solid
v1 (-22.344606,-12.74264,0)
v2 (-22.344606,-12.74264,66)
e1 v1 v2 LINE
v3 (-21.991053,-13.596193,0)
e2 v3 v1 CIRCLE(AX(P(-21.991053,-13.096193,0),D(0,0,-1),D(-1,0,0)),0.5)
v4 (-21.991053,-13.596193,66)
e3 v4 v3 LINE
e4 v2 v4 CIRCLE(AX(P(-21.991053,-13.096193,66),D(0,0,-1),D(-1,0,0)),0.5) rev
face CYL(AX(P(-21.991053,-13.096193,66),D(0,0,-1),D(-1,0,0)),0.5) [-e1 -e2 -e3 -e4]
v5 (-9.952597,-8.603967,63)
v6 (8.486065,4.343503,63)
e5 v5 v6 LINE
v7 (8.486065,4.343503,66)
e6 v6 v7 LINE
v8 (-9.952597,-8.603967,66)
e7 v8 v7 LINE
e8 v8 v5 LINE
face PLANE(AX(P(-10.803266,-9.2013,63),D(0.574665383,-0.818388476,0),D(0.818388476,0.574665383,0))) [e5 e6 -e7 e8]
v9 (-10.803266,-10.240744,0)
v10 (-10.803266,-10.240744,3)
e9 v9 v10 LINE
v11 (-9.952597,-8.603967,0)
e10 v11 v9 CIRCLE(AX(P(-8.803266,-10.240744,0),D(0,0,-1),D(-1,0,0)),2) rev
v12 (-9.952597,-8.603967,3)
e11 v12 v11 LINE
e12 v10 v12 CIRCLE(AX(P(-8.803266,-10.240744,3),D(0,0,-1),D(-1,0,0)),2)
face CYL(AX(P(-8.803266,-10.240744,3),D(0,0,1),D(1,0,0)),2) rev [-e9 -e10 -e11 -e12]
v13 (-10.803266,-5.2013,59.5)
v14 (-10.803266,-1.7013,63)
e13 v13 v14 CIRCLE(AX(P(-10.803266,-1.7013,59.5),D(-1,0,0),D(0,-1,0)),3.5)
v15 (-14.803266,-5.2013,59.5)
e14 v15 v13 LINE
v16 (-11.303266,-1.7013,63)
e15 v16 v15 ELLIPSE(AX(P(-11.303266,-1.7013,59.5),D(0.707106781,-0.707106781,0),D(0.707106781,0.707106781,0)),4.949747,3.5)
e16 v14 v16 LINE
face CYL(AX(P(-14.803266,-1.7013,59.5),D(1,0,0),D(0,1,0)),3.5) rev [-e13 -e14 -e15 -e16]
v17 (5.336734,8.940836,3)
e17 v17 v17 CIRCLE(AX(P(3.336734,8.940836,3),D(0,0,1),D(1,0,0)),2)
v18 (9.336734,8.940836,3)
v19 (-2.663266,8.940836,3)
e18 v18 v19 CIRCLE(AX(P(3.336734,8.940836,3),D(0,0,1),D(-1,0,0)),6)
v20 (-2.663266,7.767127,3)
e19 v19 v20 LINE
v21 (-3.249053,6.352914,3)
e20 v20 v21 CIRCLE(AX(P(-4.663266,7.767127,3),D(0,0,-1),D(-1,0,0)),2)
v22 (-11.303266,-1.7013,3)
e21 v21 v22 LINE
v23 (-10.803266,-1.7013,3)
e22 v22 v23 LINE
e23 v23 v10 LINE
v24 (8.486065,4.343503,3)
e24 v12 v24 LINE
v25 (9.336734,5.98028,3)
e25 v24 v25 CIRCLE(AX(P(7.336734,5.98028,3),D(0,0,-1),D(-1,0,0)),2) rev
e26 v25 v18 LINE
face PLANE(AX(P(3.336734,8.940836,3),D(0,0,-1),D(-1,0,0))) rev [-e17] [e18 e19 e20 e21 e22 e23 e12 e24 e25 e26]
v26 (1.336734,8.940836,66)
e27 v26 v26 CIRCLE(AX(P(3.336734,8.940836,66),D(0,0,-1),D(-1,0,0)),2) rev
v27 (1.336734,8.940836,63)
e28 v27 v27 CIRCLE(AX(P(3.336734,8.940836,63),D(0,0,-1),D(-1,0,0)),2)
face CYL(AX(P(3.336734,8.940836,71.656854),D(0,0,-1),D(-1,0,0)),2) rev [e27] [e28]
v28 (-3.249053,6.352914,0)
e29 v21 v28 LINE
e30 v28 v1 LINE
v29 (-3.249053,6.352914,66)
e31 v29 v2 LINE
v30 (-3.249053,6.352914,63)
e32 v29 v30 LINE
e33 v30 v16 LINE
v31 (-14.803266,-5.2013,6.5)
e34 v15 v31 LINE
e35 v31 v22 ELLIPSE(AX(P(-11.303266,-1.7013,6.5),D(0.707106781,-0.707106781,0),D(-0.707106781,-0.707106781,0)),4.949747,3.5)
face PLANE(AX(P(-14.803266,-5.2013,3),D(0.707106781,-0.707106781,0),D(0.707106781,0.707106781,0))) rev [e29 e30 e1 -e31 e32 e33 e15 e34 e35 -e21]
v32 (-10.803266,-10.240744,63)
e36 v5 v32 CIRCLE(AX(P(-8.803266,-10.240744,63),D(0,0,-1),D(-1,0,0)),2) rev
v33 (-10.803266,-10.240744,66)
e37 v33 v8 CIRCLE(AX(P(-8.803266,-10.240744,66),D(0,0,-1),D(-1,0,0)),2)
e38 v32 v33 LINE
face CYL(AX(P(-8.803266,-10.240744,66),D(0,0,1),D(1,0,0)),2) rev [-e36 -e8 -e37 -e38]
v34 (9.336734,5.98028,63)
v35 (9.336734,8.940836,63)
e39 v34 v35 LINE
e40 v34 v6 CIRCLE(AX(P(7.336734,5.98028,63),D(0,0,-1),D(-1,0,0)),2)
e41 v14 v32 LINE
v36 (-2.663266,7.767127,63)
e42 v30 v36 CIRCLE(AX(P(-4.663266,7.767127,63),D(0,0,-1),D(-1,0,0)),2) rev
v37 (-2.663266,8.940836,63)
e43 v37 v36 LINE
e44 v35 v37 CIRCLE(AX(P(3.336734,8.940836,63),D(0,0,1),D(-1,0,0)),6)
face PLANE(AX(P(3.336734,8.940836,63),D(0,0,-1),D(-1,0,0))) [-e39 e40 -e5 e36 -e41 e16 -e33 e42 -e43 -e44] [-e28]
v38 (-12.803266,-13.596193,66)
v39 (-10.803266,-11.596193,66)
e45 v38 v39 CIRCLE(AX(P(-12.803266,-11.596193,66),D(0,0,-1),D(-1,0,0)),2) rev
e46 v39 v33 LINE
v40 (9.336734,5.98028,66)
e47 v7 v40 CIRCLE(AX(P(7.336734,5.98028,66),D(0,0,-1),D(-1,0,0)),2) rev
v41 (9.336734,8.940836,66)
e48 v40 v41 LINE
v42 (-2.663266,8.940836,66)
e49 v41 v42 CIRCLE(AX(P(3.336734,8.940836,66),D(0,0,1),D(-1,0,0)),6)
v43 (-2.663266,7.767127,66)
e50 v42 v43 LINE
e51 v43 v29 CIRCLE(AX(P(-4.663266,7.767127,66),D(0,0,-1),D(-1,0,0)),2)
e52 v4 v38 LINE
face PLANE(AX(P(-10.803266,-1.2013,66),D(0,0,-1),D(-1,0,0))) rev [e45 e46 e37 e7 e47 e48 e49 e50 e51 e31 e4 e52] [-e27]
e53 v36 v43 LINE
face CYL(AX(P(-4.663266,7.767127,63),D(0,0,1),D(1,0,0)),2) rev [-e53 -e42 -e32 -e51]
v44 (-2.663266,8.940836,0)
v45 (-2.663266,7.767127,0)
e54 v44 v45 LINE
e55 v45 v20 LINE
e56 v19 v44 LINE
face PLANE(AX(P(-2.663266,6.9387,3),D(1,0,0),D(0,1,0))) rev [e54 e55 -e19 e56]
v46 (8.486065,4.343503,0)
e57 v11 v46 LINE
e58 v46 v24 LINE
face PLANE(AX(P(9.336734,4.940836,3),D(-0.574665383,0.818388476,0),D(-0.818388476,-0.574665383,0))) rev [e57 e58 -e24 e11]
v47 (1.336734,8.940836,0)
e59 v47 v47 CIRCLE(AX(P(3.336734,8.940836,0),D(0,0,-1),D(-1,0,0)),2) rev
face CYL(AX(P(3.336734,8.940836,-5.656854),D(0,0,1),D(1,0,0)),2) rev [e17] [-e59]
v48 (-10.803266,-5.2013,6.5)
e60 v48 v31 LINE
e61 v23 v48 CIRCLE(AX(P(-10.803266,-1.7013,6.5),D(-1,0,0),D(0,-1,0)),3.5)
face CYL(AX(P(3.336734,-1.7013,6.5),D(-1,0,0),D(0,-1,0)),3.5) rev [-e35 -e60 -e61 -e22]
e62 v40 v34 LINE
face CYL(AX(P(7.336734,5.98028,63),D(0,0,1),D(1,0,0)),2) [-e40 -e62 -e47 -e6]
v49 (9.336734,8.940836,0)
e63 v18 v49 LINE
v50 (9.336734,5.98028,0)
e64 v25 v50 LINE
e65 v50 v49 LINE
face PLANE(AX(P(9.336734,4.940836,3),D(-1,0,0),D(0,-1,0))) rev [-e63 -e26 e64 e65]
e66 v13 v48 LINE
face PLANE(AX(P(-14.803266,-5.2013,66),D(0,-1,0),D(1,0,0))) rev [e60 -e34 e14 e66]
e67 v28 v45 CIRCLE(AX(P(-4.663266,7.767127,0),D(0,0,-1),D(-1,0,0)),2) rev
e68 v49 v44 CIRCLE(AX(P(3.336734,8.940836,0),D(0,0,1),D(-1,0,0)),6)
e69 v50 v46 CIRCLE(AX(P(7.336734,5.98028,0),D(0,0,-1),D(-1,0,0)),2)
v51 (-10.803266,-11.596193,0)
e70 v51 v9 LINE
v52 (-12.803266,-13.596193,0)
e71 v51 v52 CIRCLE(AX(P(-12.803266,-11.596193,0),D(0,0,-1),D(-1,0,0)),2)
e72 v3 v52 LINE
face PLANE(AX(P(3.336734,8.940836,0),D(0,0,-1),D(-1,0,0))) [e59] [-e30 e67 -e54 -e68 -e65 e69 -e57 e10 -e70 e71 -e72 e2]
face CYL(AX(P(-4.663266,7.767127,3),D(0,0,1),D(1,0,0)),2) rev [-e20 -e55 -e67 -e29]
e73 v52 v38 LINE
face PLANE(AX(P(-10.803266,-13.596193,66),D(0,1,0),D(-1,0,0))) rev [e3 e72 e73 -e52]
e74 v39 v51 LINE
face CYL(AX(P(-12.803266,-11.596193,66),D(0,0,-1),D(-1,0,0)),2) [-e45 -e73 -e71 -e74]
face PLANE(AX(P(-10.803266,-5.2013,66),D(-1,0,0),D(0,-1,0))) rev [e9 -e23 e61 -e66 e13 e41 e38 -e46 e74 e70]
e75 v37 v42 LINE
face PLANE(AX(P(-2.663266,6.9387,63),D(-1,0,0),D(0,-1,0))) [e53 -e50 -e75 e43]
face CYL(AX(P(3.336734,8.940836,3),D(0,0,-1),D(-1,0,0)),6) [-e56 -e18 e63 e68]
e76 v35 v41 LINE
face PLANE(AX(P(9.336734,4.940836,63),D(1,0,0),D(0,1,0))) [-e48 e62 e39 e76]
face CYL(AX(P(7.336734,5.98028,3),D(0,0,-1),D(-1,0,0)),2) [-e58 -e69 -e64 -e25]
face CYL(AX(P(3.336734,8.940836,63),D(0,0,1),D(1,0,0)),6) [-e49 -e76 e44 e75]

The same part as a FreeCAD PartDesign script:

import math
import FreeCAD as App
import Part
import Sketcher

V = App.Vector
Q = App.Units.Quantity


def edges_at(feature, points):
    """Names of the edges that pass closest to the given points."""
    edges = feature.Shape.Edges
    near = lambda p: min(range(len(edges)), key=lambda i: edges[i].distToShape(Part.Vertex(*p))[0])
    return sorted({f"Edge{near(p) + 1}" for p in points})

doc = App.newDocument("Part")
body = doc.addObject("PartDesign::Body", "Body")

# Sketch on XY plane
sketch1 = body.newObject("Sketcher::SketchObject", "Sketch")
sketch1.AttachmentSupport = (doc.getObject("XY_Plane"), [""])
sketch1.MapMode = "FlatFace"
sketch1.addGeometry(Part.LineSegment(V(-2.7, 6.9, 0), V(-14.8, -5.2, 0)), False)
sketch1.addGeometry(Part.LineSegment(V(-14.8, -5.2, 0), V(-10.8, -5.2, 0)), False)
sketch1.addGeometry(Part.LineSegment(V(-10.8, -5.2, 0), V(-10.8, -9.2, 0)), False)
sketch1.addGeometry(Part.LineSegment(V(-10.8, -9.2, 0), V(9.3, 4.9, 0)), False)
sketch1.addGeometry(Part.LineSegment(V(9.3, 4.9, 0), V(9.3, 8.9, 0)), False)
sketch1.addGeometry(Part.ArcOfCircle(Part.Circle(V(3.3, 8.9, 0), V(0, 0, 1), 6), math.radians(0), math.radians(180)), False)
sketch1.addGeometry(Part.LineSegment(V(-2.7, 8.9, 0), V(-2.7, 6.9, 0)), False)
sketch1.addConstraint(Sketcher.Constraint("Coincident", 0, 2, 1, 1))
sketch1.addConstraint(Sketcher.Constraint("Coincident", 1, 2, 2, 1))
sketch1.addConstraint(Sketcher.Constraint("Coincident", 2, 2, 3, 1))
sketch1.addConstraint(Sketcher.Constraint("Coincident", 3, 2, 4, 1))
sketch1.addConstraint(Sketcher.Constraint("Tangent", 4, 2, 5, 1))
sketch1.addConstraint(Sketcher.Constraint("Tangent", 5, 2, 6, 1))
sketch1.addConstraint(Sketcher.Constraint("Coincident", 6, 2, 0, 1))
sketch1.addConstraint(Sketcher.Constraint("Horizontal", 1))
sketch1.addConstraint(Sketcher.Constraint("Vertical", 2))
sketch1.addConstraint(Sketcher.Constraint("Vertical", 4))
sketch1.addConstraint(Sketcher.Constraint("Vertical", 6))
sketch1.addConstraint(Sketcher.Constraint("Equal", 1, 2))
sketch1.addConstraint(Sketcher.Constraint("Equal", 2, 4))
sketch1.addConstraint(Sketcher.Constraint("Radius", 5, Q("6 mm")))
sketch1.addConstraint(Sketcher.Constraint("DistanceX", 1, 1, 1, 2, Q("4 mm")))
sketch1.addConstraint(Sketcher.Constraint("Angle", 0, Q("-135 deg")))
sketch1.addConstraint(Sketcher.Constraint("DistanceX", 0, 2, 5, 3, Q("18.14 mm")))
sketch1.addConstraint(Sketcher.Constraint("DistanceY", 0, 2, -1, 1, Q("5.2013 mm")))
sketch1.addConstraint(Sketcher.Constraint("Distance", 3, Q("24.60934 mm")))
sketch1.addConstraint(Sketcher.Constraint("DistanceX", -1, 1, 5, 3, Q("3.336734 mm")))
pad1 = body.newObject("PartDesign::Pad", "Pad")
pad1.Profile = sketch1
pad1.Length = 3

# Sketch on XY plane
sketch2 = body.newObject("Sketcher::SketchObject", "Sketch001")
sketch2.AttachmentSupport = (doc.getObject("XY_Plane"), [""])
sketch2.MapMode = "FlatFace"
sketch2.addGeometry(Part.LineSegment(V(-10.8, -5.2, 0), V(-14.8, -5.2, 0)), False)
sketch2.addGeometry(Part.LineSegment(V(-14.8, -5.2, 0), V(-23.2, -13.6, 0)), False)
sketch2.addGeometry(Part.LineSegment(V(-23.2, -13.6, 0), V(-10.8, -13.6, 0)), False)
sketch2.addGeometry(Part.LineSegment(V(-10.8, -13.6, 0), V(-10.8, -5.2, 0)), False)
sketch2.addConstraint(Sketcher.Constraint("Coincident", 0, 2, 1, 1))
sketch2.addConstraint(Sketcher.Constraint("Coincident", 1, 2, 2, 1))
sketch2.addConstraint(Sketcher.Constraint("Coincident", 2, 2, 3, 1))
sketch2.addConstraint(Sketcher.Constraint("Coincident", 3, 2, 0, 1))
sketch2.addConstraint(Sketcher.Constraint("Horizontal", 0))
sketch2.addConstraint(Sketcher.Constraint("Horizontal", 2))
sketch2.addConstraint(Sketcher.Constraint("Vertical", 3))
sketch2.addConstraint(Sketcher.Constraint("DistanceX", 0, 2, 0, 1, Q("4 mm")))
sketch2.addConstraint(Sketcher.Constraint("Angle", 1, Q("-135 deg")))
sketch2.addConstraint(Sketcher.Constraint("DistanceY", 0, 2, -1, 1, Q("5.2013 mm")))
sketch2.addConstraint(Sketcher.Constraint("Distance", 1, Q("11.872172 mm")))
sketch2.addConstraint(Sketcher.Constraint("DistanceX", 1, 2, -1, 1, Q("23.198159 mm")))
pad2 = body.newObject("PartDesign::Pad", "Pad001")
pad2.Profile = sketch2
pad2.Length = 66

# Sketch on XY plane
sketch3 = body.newObject("Sketcher::SketchObject", "Sketch002")
sketch3.AttachmentSupport = (doc.getObject("XY_Plane"), [""])
sketch3.MapMode = "FlatFace"
sketch3.AttachmentOffset = App.Placement(V(0, 0, 63), App.Rotation())
sketch3.addGeometry(Part.LineSegment(V(-14.8, -5.2, 0), V(-10.8, -5.2, 0)), False)
sketch3.addGeometry(Part.LineSegment(V(-10.8, -5.2, 0), V(-10.8, -9.2, 0)), False)
sketch3.addGeometry(Part.LineSegment(V(-10.8, -9.2, 0), V(9.3, 4.9, 0)), False)
sketch3.addGeometry(Part.LineSegment(V(9.3, 4.9, 0), V(9.3, 8.9, 0)), False)
sketch3.addGeometry(Part.ArcOfCircle(Part.Circle(V(3.3, 8.9, 0), V(0, 0, 1), 6), math.radians(0), math.radians(180)), False)
sketch3.addGeometry(Part.LineSegment(V(-2.7, 8.9, 0), V(-2.7, 6.9, 0)), False)
sketch3.addGeometry(Part.LineSegment(V(-2.7, 6.9, 0), V(-14.8, -5.2, 0)), False)
sketch3.addConstraint(Sketcher.Constraint("Coincident", 0, 2, 1, 1))
sketch3.addConstraint(Sketcher.Constraint("Coincident", 1, 2, 2, 1))
sketch3.addConstraint(Sketcher.Constraint("Coincident", 2, 2, 3, 1))
sketch3.addConstraint(Sketcher.Constraint("Tangent", 3, 2, 4, 1))
sketch3.addConstraint(Sketcher.Constraint("Tangent", 4, 2, 5, 1))
sketch3.addConstraint(Sketcher.Constraint("Coincident", 5, 2, 6, 1))
sketch3.addConstraint(Sketcher.Constraint("Coincident", 6, 2, 0, 1))
sketch3.addConstraint(Sketcher.Constraint("Horizontal", 0))
sketch3.addConstraint(Sketcher.Constraint("Vertical", 1))
sketch3.addConstraint(Sketcher.Constraint("Vertical", 3))
sketch3.addConstraint(Sketcher.Constraint("Vertical", 5))
sketch3.addConstraint(Sketcher.Constraint("Equal", 0, 1))
sketch3.addConstraint(Sketcher.Constraint("Equal", 1, 3))
sketch3.addConstraint(Sketcher.Constraint("Radius", 4, Q("6 mm")))
sketch3.addConstraint(Sketcher.Constraint("DistanceX", 0, 1, 0, 2, Q("4 mm")))
sketch3.addConstraint(Sketcher.Constraint("Angle", 6, Q("-135 deg")))
sketch3.addConstraint(Sketcher.Constraint("DistanceX", 0, 2, 4, 3, Q("14.14 mm")))
sketch3.addConstraint(Sketcher.Constraint("DistanceY", 0, 2, -1, 1, Q("5.2013 mm")))
sketch3.addConstraint(Sketcher.Constraint("Distance", 2, Q("24.60934 mm")))
sketch3.addConstraint(Sketcher.Constraint("DistanceX", -1, 1, 4, 3, Q("3.336734 mm")))
pad3 = body.newObject("PartDesign::Pad", "Pad002")
pad3.Profile = sketch3
pad3.Length = 3

# Sketch on XY plane
sketch4 = body.newObject("Sketcher::SketchObject", "Sketch003")
sketch4.AttachmentSupport = (doc.getObject("XY_Plane"), [""])
sketch4.MapMode = "FlatFace"
sketch4.AttachmentOffset = App.Placement(V(0, 0, 3), App.Rotation())
sketch4.addGeometry(Part.Circle(V(3.3, 8.9, 0), V(0, 0, 1), 2), False)
sketch4.addConstraint(Sketcher.Constraint("Diameter", 0, Q("4 mm")))
sketch4.addConstraint(Sketcher.Constraint("DistanceX", -1, 1, 0, 3, Q("3.336734 mm")))
sketch4.addConstraint(Sketcher.Constraint("DistanceY", -1, 1, 0, 3, Q("8.940836 mm")))
pocket1 = body.newObject("PartDesign::Pocket", "Pocket")
pocket1.Profile = sketch4
pocket1.Length = 3

# Sketch on XY plane
sketch5 = body.newObject("Sketcher::SketchObject", "Sketch004")
sketch5.AttachmentSupport = (doc.getObject("XY_Plane"), [""])
sketch5.MapMode = "FlatFace"
sketch5.AttachmentOffset = App.Placement(V(0, 0, 66), App.Rotation())
sketch5.addGeometry(Part.Circle(V(3.3, 8.9, 0), V(0, 0, 1), 2), False)
sketch5.addConstraint(Sketcher.Constraint("Diameter", 0, Q("4 mm")))
sketch5.addConstraint(Sketcher.Constraint("DistanceX", -1, 1, 0, 3, Q("3.336734 mm")))
sketch5.addConstraint(Sketcher.Constraint("DistanceY", -1, 1, 0, 3, Q("8.940836 mm")))
pocket2 = body.newObject("PartDesign::Pocket", "Pocket001")
pocket2.Profile = sketch5
pocket2.Length = 3
doc.recompute()

fillet = body.newObject("PartDesign::Fillet", "Fillet")
fillet.Base = (pocket2, edges_at(pocket2, [(-12.803, -5.201, 3), (-12.803, -5.201, 63)]))
fillet.Radius = 3.5
doc.recompute()

fillet2 = body.newObject("PartDesign::Fillet", "Fillet001")
fillet2.Base = (fillet, edges_at(fillet, [
    (9.337, 4.941, 1.5),
    (-2.663, 6.939, 1.5),
    (-2.663, 6.939, 64.5),
    (9.337, 4.941, 64.5),
]))
fillet2.Radius = 2
doc.recompute()

fillet3 = body.newObject("PartDesign::Fillet", "Fillet002")
fillet3.Base = (fillet2, edges_at(fillet2, [(-23.198, -13.596, 33)]))
fillet3.Radius = 0.5
doc.recompute()

fillet4 = body.newObject("PartDesign::Fillet", "Fillet003")
fillet4.Base = (fillet3, edges_at(fillet3, [(-10.803, -9.201, 1.5), (-10.803, -13.596, 33), (-10.803, -9.201, 64.5)]))
fillet4.Radius = 2

doc.recompute()
